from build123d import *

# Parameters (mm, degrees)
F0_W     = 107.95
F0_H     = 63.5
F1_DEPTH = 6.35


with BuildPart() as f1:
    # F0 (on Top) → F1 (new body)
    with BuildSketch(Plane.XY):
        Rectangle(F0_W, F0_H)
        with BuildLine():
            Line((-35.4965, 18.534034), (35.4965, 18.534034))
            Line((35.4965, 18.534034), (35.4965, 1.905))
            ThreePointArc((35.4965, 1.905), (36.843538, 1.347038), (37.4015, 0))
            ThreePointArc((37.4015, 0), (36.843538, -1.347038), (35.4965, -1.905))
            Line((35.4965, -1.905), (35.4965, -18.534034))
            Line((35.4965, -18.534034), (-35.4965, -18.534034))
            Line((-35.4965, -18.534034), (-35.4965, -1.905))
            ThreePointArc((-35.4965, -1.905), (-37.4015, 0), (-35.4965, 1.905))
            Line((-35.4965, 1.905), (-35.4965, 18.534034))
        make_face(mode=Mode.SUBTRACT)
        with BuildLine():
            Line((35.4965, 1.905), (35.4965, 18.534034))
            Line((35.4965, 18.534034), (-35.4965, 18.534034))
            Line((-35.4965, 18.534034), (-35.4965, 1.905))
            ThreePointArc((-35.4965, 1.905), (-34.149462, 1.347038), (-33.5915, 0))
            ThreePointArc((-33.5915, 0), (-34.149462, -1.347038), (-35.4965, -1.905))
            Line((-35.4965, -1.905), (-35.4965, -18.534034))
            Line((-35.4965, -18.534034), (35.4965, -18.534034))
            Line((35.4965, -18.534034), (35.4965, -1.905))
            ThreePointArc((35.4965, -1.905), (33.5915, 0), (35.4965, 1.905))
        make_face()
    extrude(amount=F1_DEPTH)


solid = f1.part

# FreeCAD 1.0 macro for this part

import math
import FreeCAD as App
import Part
import Sketcher
from FreeCAD import Vector
Q = App.Units.Quantity

doc = App.newDocument("Part")
body = doc.addObject("PartDesign::Body", "Body")

sketch1 = doc.addObject("Sketcher::SketchObject", "Sketch")
body.addObject(sketch1)
sketch1.AttachmentSupport = (doc.XY_Plane, [""])
sketch1.MapMode = "FlatFace"
sketch1.addGeometry([
    Part.LineSegment(Vector(-53.975, 31.75, 0), Vector(-53.975, -31.75, 0)),
    Part.LineSegment(Vector(-53.975, -31.75, 0), Vector(53.975, -31.75, 0)),
    Part.LineSegment(Vector(53.975, -31.75, 0), Vector(53.975, 31.75, 0)),
    Part.LineSegment(Vector(53.975, 31.75, 0), Vector(-53.975, 31.75, 0)),
    Part.ArcOfCircle(Part.Circle(Vector(-35.4965, 0, 0), Vector(0, 0, 1), 1.905), math.radians(90), math.radians(270)),
    Part.ArcOfCircle(Part.Circle(Vector(-35.496501, -0.000001, 0), Vector(0, 0, 1), 1.905001), math.radians(0.000043), math.radians(89.999957)),
    Part.ArcOfCircle(Part.Circle(Vector(-35.496501, 0.000001, 0), Vector(0, 0, 1), 1.905001), math.radians(-89.999957), math.radians(-0.000043)),
    Part.ArcOfCircle(Part.Circle(Vector(35.496499, 0.000001, 0), Vector(0, 0, 1), 1.905001), math.radians(-89.999957), math.radians(-0.000043)),
    Part.ArcOfCircle(Part.Circle(Vector(35.4965, 0, 0), Vector(0, 0, 1), 1.905), math.radians(90), math.radians(270)),
    Part.ArcOfCircle(Part.Circle(Vector(35.496499, -0.000001, 0), Vector(0, 0, 1), 1.905001), math.radians(0.000043), math.radians(89.999957)),
], False)
sketch1.addConstraint([
    Sketcher.Constraint("Coincident", 0, 2, 1, 1),
    Sketcher.Constraint("Coincident", 1, 2, 2, 1),
    Sketcher.Constraint("Coincident", 2, 2, 3, 1),
    Sketcher.Constraint("Coincident", 3, 2, 0, 1),
    Sketcher.Constraint("Tangent", 4, 1, 5, 2),
    Sketcher.Constraint("Tangent", 5, 1, 6, 2),
    Sketcher.Constraint("Tangent", 6, 1, 4, 2),
    Sketcher.Constraint("Tangent", 7, 1, 8, 2),
    Sketcher.Constraint("Tangent", 8, 1, 9, 2),
    Sketcher.Constraint("Tangent", 9, 1, 7, 2),
    Sketcher.Constraint("Vertical", 0),
    Sketcher.Constraint("Horizontal", 1),
    Sketcher.Constraint("Vertical", 2),
    Sketcher.Constraint("Horizontal", 3),
    Sketcher.Constraint("Equal", 6, 7),
    Sketcher.Constraint("Symmetric", 4, 3, 7, 3, -1, 1),
    Sketcher.Constraint("Symmetric", 0, 2, 2, 2, -1, 1),
    Sketcher.Constraint("Symmetric", 6, 1, 7, 1, -2),
    Sketcher.Constraint("PointOnObject", 5, 1, -1),
    Sketcher.Constraint("PointOnObject", 9, 1, -1),
    Sketcher.Constraint("Vertical", 6, 3, 4, 1),
    Sketcher.Constraint("Vertical", 4, 1, 6, 1),
    Sketcher.Constraint("Vertical", 7, 1, 8, 1),
    Sketcher.Constraint("DistanceY", 0, 2, 0, 1, Q("2.5 in")),
    Sketcher.Constraint("Radius", 4, Q("0.075 in")),
    Sketcher.Constraint("DistanceX", 1, 1, 1, 2, Q("4.25 in")),
    Sketcher.Constraint("DistanceX", 4, 3, 7, 3, Q("2.7949999 in")),
])
pad1 = doc.addObject("PartDesign::Pad", "Pad")
body.addObject(pad1)
pad1.Profile = sketch1
pad1.Length = Q("0.25 in")

doc.recompute()
